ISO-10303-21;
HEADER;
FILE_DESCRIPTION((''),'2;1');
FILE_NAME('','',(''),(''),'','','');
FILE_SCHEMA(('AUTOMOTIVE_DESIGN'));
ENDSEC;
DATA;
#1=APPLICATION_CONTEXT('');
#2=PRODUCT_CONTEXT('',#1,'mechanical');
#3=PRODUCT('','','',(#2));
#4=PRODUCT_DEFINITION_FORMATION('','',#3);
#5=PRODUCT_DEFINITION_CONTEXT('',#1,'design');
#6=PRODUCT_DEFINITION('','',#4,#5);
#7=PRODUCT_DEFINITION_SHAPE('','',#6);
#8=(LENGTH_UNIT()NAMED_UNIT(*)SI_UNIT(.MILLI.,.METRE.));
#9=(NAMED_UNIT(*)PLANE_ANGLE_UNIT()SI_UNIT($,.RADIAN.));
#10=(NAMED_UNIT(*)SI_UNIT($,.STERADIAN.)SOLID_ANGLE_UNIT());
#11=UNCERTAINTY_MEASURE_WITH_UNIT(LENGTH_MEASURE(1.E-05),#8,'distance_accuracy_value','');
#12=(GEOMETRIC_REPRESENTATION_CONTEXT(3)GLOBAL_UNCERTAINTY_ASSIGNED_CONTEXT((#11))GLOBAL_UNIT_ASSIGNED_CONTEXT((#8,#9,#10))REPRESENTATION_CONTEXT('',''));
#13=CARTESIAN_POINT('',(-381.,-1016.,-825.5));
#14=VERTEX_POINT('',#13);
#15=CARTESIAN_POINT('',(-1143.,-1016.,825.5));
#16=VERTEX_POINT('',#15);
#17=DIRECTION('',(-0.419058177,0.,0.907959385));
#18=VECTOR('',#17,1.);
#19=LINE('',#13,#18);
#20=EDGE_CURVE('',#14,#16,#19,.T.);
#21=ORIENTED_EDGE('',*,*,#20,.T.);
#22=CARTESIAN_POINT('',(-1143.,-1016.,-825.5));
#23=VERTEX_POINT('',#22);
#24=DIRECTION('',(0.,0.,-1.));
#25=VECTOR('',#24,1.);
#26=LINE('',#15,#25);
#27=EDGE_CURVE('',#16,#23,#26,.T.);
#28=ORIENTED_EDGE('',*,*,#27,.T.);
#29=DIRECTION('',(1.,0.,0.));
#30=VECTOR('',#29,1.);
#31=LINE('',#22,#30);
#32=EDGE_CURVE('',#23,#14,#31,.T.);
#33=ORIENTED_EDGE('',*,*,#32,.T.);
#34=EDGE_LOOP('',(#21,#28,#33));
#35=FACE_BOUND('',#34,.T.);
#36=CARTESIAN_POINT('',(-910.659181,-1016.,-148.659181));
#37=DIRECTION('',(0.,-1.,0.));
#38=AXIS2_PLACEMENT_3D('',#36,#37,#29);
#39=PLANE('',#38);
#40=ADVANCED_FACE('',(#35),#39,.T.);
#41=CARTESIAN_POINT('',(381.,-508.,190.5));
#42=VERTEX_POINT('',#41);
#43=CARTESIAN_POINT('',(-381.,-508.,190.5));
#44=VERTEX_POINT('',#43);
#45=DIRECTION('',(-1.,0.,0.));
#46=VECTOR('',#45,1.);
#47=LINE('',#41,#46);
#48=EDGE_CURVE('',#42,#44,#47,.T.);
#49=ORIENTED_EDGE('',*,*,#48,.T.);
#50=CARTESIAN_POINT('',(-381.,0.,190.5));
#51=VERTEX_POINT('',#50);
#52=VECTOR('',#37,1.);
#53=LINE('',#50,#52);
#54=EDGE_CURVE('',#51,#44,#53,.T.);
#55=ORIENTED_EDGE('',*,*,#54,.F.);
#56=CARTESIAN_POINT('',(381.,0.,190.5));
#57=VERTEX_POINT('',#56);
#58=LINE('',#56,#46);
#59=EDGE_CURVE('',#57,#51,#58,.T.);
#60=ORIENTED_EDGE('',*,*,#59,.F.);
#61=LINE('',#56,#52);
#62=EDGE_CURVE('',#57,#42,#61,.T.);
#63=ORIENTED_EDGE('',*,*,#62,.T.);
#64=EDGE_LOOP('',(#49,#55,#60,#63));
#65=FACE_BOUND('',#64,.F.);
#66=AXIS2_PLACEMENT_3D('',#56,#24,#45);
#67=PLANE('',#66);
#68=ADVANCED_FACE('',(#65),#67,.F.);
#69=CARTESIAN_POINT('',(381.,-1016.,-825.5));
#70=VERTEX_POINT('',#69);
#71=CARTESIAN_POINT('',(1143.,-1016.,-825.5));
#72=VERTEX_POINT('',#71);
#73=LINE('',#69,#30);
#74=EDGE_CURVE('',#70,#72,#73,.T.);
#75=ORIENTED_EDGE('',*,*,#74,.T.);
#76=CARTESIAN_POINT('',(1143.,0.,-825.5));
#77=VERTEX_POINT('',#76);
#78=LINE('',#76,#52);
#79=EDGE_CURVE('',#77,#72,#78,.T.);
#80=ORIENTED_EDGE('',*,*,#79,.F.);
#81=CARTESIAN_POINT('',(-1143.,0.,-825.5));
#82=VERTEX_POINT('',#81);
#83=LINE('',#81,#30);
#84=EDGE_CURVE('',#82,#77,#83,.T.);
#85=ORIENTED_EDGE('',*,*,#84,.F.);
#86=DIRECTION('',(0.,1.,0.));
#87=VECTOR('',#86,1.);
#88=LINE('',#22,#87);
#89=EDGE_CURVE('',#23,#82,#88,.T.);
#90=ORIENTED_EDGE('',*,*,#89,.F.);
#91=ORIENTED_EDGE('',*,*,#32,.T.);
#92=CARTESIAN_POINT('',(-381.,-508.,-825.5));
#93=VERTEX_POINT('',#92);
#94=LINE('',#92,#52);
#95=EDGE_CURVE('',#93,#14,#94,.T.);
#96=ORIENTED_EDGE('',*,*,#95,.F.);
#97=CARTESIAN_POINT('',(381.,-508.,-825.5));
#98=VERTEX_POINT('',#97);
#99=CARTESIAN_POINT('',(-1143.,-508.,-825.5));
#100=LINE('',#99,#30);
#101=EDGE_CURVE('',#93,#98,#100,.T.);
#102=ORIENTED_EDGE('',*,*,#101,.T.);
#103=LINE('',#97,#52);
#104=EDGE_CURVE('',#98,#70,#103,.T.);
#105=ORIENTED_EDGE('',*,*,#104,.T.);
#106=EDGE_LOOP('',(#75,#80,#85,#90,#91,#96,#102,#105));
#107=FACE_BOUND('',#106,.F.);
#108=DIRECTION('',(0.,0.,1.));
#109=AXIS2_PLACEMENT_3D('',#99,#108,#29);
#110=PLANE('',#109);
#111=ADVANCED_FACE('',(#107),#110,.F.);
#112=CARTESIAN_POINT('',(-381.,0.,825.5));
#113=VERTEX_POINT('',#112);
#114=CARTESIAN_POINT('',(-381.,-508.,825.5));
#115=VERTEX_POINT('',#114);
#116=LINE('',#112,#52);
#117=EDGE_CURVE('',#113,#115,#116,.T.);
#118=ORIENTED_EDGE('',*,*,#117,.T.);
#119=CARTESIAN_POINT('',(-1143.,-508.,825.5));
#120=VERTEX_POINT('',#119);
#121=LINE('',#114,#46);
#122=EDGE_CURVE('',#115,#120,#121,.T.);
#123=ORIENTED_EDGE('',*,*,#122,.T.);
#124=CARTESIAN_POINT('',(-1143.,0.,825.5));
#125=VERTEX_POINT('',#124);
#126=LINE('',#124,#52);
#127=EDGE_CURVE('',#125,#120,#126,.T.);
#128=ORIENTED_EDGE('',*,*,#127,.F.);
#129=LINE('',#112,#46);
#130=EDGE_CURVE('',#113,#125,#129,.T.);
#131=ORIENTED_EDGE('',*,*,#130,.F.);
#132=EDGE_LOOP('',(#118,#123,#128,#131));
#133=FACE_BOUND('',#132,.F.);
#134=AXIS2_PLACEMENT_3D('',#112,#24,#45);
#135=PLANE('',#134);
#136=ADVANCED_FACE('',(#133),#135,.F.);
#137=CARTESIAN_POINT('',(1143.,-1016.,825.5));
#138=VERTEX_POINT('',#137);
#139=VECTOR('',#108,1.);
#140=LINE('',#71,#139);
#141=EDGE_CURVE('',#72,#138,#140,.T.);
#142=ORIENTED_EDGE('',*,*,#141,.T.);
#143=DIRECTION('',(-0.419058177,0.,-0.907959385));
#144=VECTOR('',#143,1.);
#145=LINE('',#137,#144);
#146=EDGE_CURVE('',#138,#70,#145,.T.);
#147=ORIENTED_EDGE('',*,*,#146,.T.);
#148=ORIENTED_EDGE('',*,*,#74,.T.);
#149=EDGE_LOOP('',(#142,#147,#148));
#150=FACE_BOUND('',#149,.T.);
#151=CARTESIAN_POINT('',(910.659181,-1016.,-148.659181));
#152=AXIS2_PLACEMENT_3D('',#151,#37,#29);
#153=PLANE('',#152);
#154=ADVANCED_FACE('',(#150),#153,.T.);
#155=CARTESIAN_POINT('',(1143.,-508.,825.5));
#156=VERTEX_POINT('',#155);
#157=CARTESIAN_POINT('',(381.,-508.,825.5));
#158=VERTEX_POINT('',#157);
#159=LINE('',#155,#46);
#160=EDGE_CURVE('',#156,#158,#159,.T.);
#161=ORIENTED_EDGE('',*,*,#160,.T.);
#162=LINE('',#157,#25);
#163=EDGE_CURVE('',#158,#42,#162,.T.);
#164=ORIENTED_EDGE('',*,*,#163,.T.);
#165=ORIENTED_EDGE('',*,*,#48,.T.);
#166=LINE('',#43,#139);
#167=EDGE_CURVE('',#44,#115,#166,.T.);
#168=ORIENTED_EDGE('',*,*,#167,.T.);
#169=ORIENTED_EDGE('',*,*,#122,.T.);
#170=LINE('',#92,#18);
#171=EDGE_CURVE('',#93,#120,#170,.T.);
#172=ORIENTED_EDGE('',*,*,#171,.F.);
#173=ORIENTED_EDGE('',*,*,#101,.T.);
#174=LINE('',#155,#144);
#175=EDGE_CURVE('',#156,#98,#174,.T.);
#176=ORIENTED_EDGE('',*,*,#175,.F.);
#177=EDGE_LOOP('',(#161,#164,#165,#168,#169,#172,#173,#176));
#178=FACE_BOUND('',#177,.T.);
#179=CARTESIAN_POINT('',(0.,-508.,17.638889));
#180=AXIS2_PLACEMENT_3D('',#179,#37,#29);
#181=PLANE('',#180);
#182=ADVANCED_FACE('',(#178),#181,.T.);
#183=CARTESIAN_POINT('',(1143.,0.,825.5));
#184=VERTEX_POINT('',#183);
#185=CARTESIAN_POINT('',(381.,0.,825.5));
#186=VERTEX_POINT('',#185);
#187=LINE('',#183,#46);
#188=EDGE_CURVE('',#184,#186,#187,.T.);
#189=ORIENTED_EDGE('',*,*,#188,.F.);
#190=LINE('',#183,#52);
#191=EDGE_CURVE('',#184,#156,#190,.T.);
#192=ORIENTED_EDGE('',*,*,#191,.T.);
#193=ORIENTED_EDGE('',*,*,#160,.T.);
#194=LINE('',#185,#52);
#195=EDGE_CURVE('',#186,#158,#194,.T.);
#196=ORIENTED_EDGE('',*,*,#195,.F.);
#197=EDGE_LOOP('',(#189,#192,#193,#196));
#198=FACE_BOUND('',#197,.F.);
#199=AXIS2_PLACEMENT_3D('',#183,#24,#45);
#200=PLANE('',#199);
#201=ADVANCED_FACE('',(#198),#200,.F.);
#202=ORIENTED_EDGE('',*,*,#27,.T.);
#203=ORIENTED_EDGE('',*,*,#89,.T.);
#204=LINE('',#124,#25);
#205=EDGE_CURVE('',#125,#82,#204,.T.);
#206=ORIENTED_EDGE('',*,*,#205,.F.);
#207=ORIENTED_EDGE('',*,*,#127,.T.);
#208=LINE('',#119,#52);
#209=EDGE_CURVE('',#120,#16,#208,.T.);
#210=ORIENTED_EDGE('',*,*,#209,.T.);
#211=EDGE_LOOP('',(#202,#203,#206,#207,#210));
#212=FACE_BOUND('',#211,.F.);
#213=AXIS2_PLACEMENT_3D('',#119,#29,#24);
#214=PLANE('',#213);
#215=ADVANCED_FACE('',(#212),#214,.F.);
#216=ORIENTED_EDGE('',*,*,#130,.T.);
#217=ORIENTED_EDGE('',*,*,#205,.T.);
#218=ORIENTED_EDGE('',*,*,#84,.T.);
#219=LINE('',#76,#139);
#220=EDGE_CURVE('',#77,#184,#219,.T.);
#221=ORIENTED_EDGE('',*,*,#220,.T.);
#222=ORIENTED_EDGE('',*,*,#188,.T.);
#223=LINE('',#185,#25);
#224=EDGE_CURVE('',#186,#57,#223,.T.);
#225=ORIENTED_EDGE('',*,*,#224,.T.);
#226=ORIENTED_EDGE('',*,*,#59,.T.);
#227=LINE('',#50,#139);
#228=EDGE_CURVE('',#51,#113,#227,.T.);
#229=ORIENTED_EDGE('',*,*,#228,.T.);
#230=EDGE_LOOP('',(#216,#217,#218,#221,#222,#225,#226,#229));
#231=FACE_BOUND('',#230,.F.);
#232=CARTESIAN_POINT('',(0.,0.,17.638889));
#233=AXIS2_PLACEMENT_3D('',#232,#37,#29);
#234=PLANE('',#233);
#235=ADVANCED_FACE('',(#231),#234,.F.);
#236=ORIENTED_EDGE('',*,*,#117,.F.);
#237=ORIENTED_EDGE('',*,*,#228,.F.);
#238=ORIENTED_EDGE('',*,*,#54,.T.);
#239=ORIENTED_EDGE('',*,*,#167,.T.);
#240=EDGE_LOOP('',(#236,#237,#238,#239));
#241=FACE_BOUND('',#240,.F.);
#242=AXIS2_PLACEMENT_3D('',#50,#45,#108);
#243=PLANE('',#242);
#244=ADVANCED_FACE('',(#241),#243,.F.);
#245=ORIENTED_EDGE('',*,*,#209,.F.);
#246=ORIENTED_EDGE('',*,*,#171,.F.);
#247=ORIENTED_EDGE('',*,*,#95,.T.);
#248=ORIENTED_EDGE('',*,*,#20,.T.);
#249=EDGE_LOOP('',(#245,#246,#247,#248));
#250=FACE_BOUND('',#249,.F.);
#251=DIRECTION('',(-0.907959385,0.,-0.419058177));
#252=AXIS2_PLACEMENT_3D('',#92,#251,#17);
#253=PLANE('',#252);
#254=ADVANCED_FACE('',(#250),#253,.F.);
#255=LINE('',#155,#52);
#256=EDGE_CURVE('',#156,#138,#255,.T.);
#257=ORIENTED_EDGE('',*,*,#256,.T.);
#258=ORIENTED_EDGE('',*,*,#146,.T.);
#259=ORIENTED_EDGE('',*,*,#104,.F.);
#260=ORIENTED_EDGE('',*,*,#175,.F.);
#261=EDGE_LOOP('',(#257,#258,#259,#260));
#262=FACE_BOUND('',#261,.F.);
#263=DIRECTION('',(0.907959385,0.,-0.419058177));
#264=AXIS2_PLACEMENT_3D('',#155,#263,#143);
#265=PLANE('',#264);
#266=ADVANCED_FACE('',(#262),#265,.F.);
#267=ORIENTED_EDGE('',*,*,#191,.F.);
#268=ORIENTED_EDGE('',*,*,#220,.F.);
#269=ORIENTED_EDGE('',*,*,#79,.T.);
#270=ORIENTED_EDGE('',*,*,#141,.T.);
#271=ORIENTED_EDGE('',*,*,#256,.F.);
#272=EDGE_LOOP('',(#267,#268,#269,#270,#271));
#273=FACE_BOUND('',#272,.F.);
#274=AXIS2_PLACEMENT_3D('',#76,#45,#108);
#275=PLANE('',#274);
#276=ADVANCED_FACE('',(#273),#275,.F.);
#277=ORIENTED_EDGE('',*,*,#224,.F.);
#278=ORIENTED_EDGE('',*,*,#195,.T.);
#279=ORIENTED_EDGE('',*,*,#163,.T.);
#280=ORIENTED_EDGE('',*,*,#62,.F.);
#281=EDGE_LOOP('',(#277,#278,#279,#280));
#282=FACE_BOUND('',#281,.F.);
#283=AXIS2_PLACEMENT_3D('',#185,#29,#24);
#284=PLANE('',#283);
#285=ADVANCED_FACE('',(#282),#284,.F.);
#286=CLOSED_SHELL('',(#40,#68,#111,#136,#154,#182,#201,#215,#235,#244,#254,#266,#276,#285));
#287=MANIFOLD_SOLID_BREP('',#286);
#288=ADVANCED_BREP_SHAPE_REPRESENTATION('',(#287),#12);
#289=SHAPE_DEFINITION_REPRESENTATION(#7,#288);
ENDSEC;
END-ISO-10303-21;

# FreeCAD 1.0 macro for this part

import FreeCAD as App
import Part
import Sketcher
from FreeCAD import Vector
Q = App.Units.Quantity


def add_polygon(sketch, points):
    """Adds a closed chain of lines whose ends are joined by coincident constraints."""
    first, n = sketch.GeometryCount, len(points)
    for a, b in zip(points, points[1:] + points[:1]):
        sketch.addGeometry(Part.LineSegment(App.Vector(*a, 0), App.Vector(*b, 0)), False)
    for i in range(n):
        sketch.addConstraint(Sketcher.Constraint("Coincident", first + i, 2, first + (i + 1) % n, 1))

doc = App.newDocument("Part")
body = doc.addObject("PartDesign::Body", "Body")

# Sketch on XZ plane
sketch1 = body.newObject("Sketcher::SketchObject", "Sketch")
sketch1.AttachmentSupport = (doc.getObject("XZ_Plane"), [""])
sketch1.MapMode = "FlatFace"
add_polygon(sketch1, [(1143, -825.5), (1143, 825.5), (381, 825.5), (381, 190.5), (-381, 190.5), (-381, 825.5), (-1143, 825.5), (-1143, -825.5)])  # lines 0-7
sketch1.addConstraint([
    Sketcher.Constraint("Vertical", 0),
    Sketcher.Constraint("Horizontal", 1),
    Sketcher.Constraint("Vertical", 2),
    Sketcher.Constraint("Horizontal", 3),
    Sketcher.Constraint("Vertical", 4),
    Sketcher.Constraint("Horizontal", 5),
    Sketcher.Constraint("Vertical", 6),
    Sketcher.Constraint("Horizontal", 7),
    Sketcher.Constraint("Symmetric", 0, 2, 6, 2, -1, 1),
    Sketcher.Constraint("Symmetric", 1, 2, 4, 2, -2),
    Sketcher.Constraint("Equal", 1, 3),
    Sketcher.Constraint("DistanceX", 1, 2, 1, 1, Q("30 in")),
    Sketcher.Constraint("DistanceY", 0, 1, 0, 2, Q("65 in")),
    Sketcher.Constraint("DistanceY", 2, 2, 2, 1, Q("25 in")),
])
pad1 = body.newObject("PartDesign::Pad", "Pad")
pad1.Profile = sketch1
pad1.Length = Q("20 in")

# Sketch on XZ plane
sketch2 = body.newObject("Sketcher::SketchObject", "Sketch001")
sketch2.AttachmentSupport = (doc.getObject("XZ_Plane"), [""])
sketch2.MapMode = "FlatFace"
sketch2.AttachmentOffset = App.Placement(Vector(0, 0, 20 * 25.4), App.Rotation())
add_polygon(sketch2, [(-381, -825.5), (-1143, 825.5), (-1143, -825.5)])  # lines 0-2
add_polygon(sketch2, [(1143, -825.5), (1143, 825.5), (381, -825.5)])  # lines 3-5
sketch2.addConstraint([
    Sketcher.Constraint("Vertical", 1),
    Sketcher.Constraint("Horizontal", 2),
    Sketcher.Constraint("Vertical", 3),
    Sketcher.Constraint("Horizontal", 5),
    Sketcher.Constraint("Symmetric", 1, 2, 3, 2, -1, 1),
    Sketcher.Constraint("Symmetric", 2, 2, 4, 2, -2),
    Sketcher.Constraint("Horizontal", 0, 2, 3, 2),
    Sketcher.Constraint("DistanceX", 2, 1, 2, 2, Q("30 in")),
    Sketcher.Constraint("DistanceY", 1, 2, 1, 1, Q("65 in")),
    Sketcher.Constraint("DistanceX", 0, 2, -1, 1, Q("45 in")),
])
pad2 = body.newObject("PartDesign::Pad", "Pad001")
pad2.Profile = sketch2
pad2.Length = Q("20 in")

doc.recompute()
